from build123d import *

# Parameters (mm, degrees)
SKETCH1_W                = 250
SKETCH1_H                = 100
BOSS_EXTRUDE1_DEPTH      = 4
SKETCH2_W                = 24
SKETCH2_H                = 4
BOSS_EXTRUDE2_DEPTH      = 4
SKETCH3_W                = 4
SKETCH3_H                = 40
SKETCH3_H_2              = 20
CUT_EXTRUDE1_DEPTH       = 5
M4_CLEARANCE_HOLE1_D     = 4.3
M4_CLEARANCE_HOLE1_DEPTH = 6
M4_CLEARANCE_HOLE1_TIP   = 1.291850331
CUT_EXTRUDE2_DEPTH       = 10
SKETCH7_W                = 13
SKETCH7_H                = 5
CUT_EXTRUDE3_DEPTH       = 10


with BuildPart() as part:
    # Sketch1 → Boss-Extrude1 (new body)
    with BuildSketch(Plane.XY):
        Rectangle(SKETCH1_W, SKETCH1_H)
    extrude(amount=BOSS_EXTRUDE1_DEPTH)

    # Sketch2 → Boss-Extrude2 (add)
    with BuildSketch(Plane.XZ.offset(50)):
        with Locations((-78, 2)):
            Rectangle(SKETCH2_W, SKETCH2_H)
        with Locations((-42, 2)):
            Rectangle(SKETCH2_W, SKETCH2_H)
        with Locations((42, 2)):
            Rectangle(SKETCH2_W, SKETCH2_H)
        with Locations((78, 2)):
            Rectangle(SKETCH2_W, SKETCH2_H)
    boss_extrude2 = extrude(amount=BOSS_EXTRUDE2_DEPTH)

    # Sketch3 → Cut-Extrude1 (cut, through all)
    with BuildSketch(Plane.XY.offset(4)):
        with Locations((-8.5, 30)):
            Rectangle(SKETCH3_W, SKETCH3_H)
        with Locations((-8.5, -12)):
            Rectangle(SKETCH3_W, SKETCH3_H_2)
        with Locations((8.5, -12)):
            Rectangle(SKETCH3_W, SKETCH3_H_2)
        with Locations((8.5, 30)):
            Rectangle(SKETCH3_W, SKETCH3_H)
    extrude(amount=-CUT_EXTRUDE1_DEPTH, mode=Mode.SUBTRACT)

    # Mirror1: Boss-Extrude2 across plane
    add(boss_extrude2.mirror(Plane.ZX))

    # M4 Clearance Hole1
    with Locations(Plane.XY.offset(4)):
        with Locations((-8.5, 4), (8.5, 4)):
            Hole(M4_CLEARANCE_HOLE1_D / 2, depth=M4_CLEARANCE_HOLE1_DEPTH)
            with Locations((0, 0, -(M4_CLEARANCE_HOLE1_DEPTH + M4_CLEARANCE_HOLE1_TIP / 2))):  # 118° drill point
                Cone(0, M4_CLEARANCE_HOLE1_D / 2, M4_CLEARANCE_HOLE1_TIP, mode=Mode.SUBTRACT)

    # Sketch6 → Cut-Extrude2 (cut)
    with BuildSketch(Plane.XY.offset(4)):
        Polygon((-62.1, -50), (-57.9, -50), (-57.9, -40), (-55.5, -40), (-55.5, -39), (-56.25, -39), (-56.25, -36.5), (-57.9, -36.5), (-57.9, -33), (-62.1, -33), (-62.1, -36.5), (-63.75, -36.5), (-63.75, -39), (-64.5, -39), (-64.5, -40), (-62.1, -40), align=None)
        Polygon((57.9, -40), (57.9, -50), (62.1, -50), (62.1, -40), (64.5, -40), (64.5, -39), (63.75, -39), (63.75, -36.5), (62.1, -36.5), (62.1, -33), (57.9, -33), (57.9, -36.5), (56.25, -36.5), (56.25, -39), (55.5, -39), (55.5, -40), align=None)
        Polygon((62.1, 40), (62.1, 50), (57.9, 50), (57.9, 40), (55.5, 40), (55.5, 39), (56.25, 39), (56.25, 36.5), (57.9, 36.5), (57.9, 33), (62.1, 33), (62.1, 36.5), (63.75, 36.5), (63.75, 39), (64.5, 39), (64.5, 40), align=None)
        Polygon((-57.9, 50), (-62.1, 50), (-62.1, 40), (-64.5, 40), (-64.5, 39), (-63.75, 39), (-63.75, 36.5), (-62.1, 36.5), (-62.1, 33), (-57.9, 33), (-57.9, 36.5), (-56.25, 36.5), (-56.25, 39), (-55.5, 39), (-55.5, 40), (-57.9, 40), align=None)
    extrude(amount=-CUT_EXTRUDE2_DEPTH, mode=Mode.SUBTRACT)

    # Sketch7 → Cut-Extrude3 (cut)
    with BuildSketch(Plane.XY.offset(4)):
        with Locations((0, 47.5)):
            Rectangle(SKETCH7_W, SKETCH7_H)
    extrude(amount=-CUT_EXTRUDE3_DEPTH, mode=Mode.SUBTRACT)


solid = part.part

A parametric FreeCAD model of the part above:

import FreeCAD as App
import Part
import Sketcher

V = App.Vector

doc = App.newDocument("Part")
body = doc.addObject("PartDesign::Body", "Body")

# Sketch on XY plane
sketch1 = body.newObject("Sketcher::SketchObject", "Sketch")
sketch1.AttachmentSupport = (doc.getObject("XY_Plane"), [""])
sketch1.MapMode = "FlatFace"
sketch1.addGeometry([
    Part.LineSegment(V(-125, 50, 0), V(-125, -50, 0)),
    Part.LineSegment(V(-125, -50, 0), V(125, -50, 0)),
    Part.LineSegment(V(125, -50, 0), V(125, 50, 0)),
    Part.LineSegment(V(125, 50, 0), V(-125, 50, 0)),
], False)
sketch1.addConstraint([
    Sketcher.Constraint("Coincident", 0, 2, 1, 1),
    Sketcher.Constraint("Coincident", 1, 2, 2, 1),
    Sketcher.Constraint("Coincident", 2, 2, 3, 1),
    Sketcher.Constraint("Coincident", 3, 2, 0, 1),
    Sketcher.Constraint("Vertical", 0),
    Sketcher.Constraint("Horizontal", 1),
    Sketcher.Constraint("Vertical", 2),
    Sketcher.Constraint("Horizontal", 3),
    Sketcher.Constraint("Symmetric", 0, 2, 2, 2, -1, 1),
    Sketcher.Constraint("DistanceX", 1, 1, 1, 2, 250.0),
    Sketcher.Constraint("DistanceY", 0, 2, 0, 1, 100.0),
])
pad1 = body.newObject("PartDesign::Pad", "Pad")
pad1.Profile = sketch1
pad1.Length = 4

# Sketch on XZ plane
sketch2 = body.newObject("Sketcher::SketchObject", "Sketch001")
sketch2.AttachmentSupport = (doc.getObject("XZ_Plane"), [""])
sketch2.MapMode = "FlatFace"
sketch2.AttachmentOffset = App.Placement(V(0, 0, 50), App.Rotation())
sketch2.addGeometry([
    Part.LineSegment(V(-90, 4, 0), V(-90, 0, 0)),  # 0
    Part.LineSegment(V(-90, 0, 0), V(-66, 0, 0)),  # 1
    Part.LineSegment(V(-66, 0, 0), V(-66, 4, 0)),  # 2
    Part.LineSegment(V(-66, 4, 0), V(-90, 4, 0)),  # 3
    Part.LineSegment(V(-54, 4, 0), V(-54, 0, 0)),  # 4
    Part.LineSegment(V(-54, 0, 0), V(-30, 0, 0)),  # 5
    Part.LineSegment(V(-30, 0, 0), V(-30, 4, 0)),  # 6
    Part.LineSegment(V(-30, 4, 0), V(-54, 4, 0)),  # 7
    Part.LineSegment(V(30, 4, 0), V(30, 0, 0)),  # 8
    Part.LineSegment(V(30, 0, 0), V(54, 0, 0)),  # 9
    Part.LineSegment(V(54, 0, 0), V(54, 4, 0)),  # 10
    Part.LineSegment(V(54, 4, 0), V(30, 4, 0)),  # 11
    Part.LineSegment(V(66, 4, 0), V(66, 0, 0)),  # 12
    Part.LineSegment(V(66, 0, 0), V(90, 0, 0)),  # 13
    Part.LineSegment(V(90, 0, 0), V(90, 4, 0)),  # 14
    Part.LineSegment(V(90, 4, 0), V(66, 4, 0)),  # 15
], False)
sketch2.addConstraint([
    Sketcher.Constraint("Coincident", 0, 2, 1, 1),
    Sketcher.Constraint("Coincident", 1, 2, 2, 1),
    Sketcher.Constraint("Coincident", 2, 2, 3, 1),
    Sketcher.Constraint("Coincident", 3, 2, 0, 1),
    Sketcher.Constraint("Coincident", 4, 2, 5, 1),
    Sketcher.Constraint("Coincident", 5, 2, 6, 1),
    Sketcher.Constraint("Coincident", 6, 2, 7, 1),
    Sketcher.Constraint("Coincident", 7, 2, 4, 1),
    Sketcher.Constraint("Coincident", 8, 2, 9, 1),
    Sketcher.Constraint("Coincident", 9, 2, 10, 1),
    Sketcher.Constraint("Coincident", 10, 2, 11, 1),
    Sketcher.Constraint("Coincident", 11, 2, 8, 1),
    Sketcher.Constraint("Coincident", 12, 2, 13, 1),
    Sketcher.Constraint("Coincident", 13, 2, 14, 1),
    Sketcher.Constraint("Coincident", 14, 2, 15, 1),
    Sketcher.Constraint("Coincident", 15, 2, 12, 1),
    Sketcher.Constraint("Vertical", 0),
    Sketcher.Constraint("Horizontal", 1),
    Sketcher.Constraint("Vertical", 2),
    Sketcher.Constraint("Horizontal", 3),
    Sketcher.Constraint("Vertical", 4),
    Sketcher.Constraint("Horizontal", 5),
    Sketcher.Constraint("Vertical", 6),
    Sketcher.Constraint("Horizontal", 7),
    Sketcher.Constraint("Vertical", 8),
    Sketcher.Constraint("Horizontal", 9),
    Sketcher.Constraint("Vertical", 10),
    Sketcher.Constraint("Horizontal", 11),
    Sketcher.Constraint("Vertical", 12),
    Sketcher.Constraint("Horizontal", 13),
    Sketcher.Constraint("Vertical", 14),
    Sketcher.Constraint("Horizontal", 15),
    Sketcher.Constraint("Symmetric", 5, 2, 8, 2, -1, 1),
    Sketcher.Constraint("Symmetric", 1, 2, 12, 2, -1, 1),
    Sketcher.Constraint("Symmetric", 4, 2, 9, 2, -2),
    Sketcher.Constraint("Symmetric", 0, 2, 13, 2, -2),
    Sketcher.Constraint("Horizontal", 3, 2, 6, 2),
    Sketcher.Constraint("Horizontal", 7, 2, 10, 2),
    Sketcher.Constraint("Horizontal", 11, 2, 14, 2),
    Sketcher.Constraint("Equal", 3, 5),
    Sketcher.Constraint("DistanceX", 1, 1, 1, 2, 24.0),
    Sketcher.Constraint("DistanceY", 0, 2, 0, 1, 4.0),
    Sketcher.Constraint("DistanceX", 0, 2, -1, 1, 90.0),
    Sketcher.Constraint("DistanceX", 4, 2, -1, 1, 54.0),
])
pad2 = body.newObject("PartDesign::Pad", "Pad001")
pad2.Profile = sketch2
pad2.Length = 4

# Sketch on XY plane
sketch3 = body.newObject("Sketcher::SketchObject", "Sketch002")
sketch3.AttachmentSupport = (doc.getObject("XY_Plane"), [""])
sketch3.MapMode = "FlatFace"
sketch3.AttachmentOffset = App.Placement(V(0, 0, 4), App.Rotation())
sketch3.addGeometry([
    Part.LineSegment(V(-10.5, 50, 0), V(-10.5, 10, 0)),  # 0
    Part.LineSegment(V(-10.5, 10, 0), V(-6.5, 10, 0)),  # 1
    Part.LineSegment(V(-6.5, 10, 0), V(-6.5, 50, 0)),  # 2
    Part.LineSegment(V(-6.5, 50, 0), V(-10.5, 50, 0)),  # 3
    Part.LineSegment(V(-10.5, -2, 0), V(-10.5, -22, 0)),  # 4
    Part.LineSegment(V(-10.5, -22, 0), V(-6.5, -22, 0)),  # 5
    Part.LineSegment(V(-6.5, -22, 0), V(-6.5, -2, 0)),  # 6
    Part.LineSegment(V(-6.5, -2, 0), V(-10.5, -2, 0)),  # 7
    Part.LineSegment(V(6.5, -2, 0), V(6.5, -22, 0)),  # 8
    Part.LineSegment(V(6.5, -22, 0), V(10.5, -22, 0)),  # 9
    Part.LineSegment(V(10.5, -22, 0), V(10.5, -2, 0)),  # 10
    Part.LineSegment(V(10.5, -2, 0), V(6.5, -2, 0)),  # 11
    Part.LineSegment(V(6.5, 50, 0), V(6.5, 10, 0)),  # 12
    Part.LineSegment(V(6.5, 10, 0), V(10.5, 10, 0)),  # 13
    Part.LineSegment(V(10.5, 10, 0), V(10.5, 50, 0)),  # 14
    Part.LineSegment(V(10.5, 50, 0), V(6.5, 50, 0)),  # 15
], False)
sketch3.addConstraint([
    Sketcher.Constraint("Coincident", 0, 2, 1, 1),
    Sketcher.Constraint("Coincident", 1, 2, 2, 1),
    Sketcher.Constraint("Coincident", 2, 2, 3, 1),
    Sketcher.Constraint("Coincident", 3, 2, 0, 1),
    Sketcher.Constraint("Coincident", 4, 2, 5, 1),
    Sketcher.Constraint("Coincident", 5, 2, 6, 1),
    Sketcher.Constraint("Coincident", 6, 2, 7, 1),
    Sketcher.Constraint("Coincident", 7, 2, 4, 1),
    Sketcher.Constraint("Coincident", 8, 2, 9, 1),
    Sketcher.Constraint("Coincident", 9, 2, 10, 1),
    Sketcher.Constraint("Coincident", 10, 2, 11, 1),
    Sketcher.Constraint("Coincident", 11, 2, 8, 1),
    Sketcher.Constraint("Coincident", 12, 2, 13, 1),
    Sketcher.Constraint("Coincident", 13, 2, 14, 1),
    Sketcher.Constraint("Coincident", 14, 2, 15, 1),
    Sketcher.Constraint("Coincident", 15, 2, 12, 1),
    Sketcher.Constraint("Vertical", 0),
    Sketcher.Constraint("Horizontal", 1),
    Sketcher.Constraint("Vertical", 2),
    Sketcher.Constraint("Horizontal", 3),
    Sketcher.Constraint("Vertical", 4),
    Sketcher.Constraint("Horizontal", 5),
    Sketcher.Constraint("Vertical", 6),
    Sketcher.Constraint("Horizontal", 7),
    Sketcher.Constraint("Vertical", 8),
    Sketcher.Constraint("Horizontal", 9),
    Sketcher.Constraint("Vertical", 10),
    Sketcher.Constraint("Horizontal", 11),
    Sketcher.Constraint("Vertical", 12),
    Sketcher.Constraint("Horizontal", 13),
    Sketcher.Constraint("Vertical", 14),
    Sketcher.Constraint("Horizontal", 15),
    Sketcher.Constraint("Symmetric", 5, 2, 8, 2, -2),
    Sketcher.Constraint("Symmetric", 7, 2, 10, 2, -2),
    Sketcher.Constraint("Symmetric", 1, 2, 12, 2, -2),
    Sketcher.Constraint("Symmetric", 3, 2, 14, 2, -2),
    Sketcher.Constraint("Vertical", 3, 2, 4, 2),
    Sketcher.Constraint("Vertical", 2, 2, 5, 2),
    Sketcher.Constraint("DistanceX", 1, 1, 1, 2, 4.0),
    Sketcher.Constraint("DistanceY", 0, 2, 0, 1, 40.0),
    Sketcher.Constraint("DistanceY", 4, 2, 4, 1, 20.0),
    Sketcher.Constraint("DistanceY", -1, 1, 0, 2, 10.0),
    Sketcher.Constraint("DistanceY", 4, 2, -1, 1, 22.0),
    Sketcher.Constraint("DistanceX", 5, 2, 8, 2, 13.0),
])
pocket1 = body.newObject("PartDesign::Pocket", "Pocket")
pocket1.Profile = sketch3
pocket1.Type = "ThroughAll"
doc.recompute()

mirrored = body.newObject("PartDesign::Mirrored", "Mirrored")
mirrored.Originals = [pad2]
mirrored.MirrorPlane = (doc.getObject("XZ_Plane"), [""])
body.Tip = mirrored

# Sketch on XY plane
sketch4 = body.newObject("Sketcher::SketchObject", "Sketch003")
sketch4.AttachmentSupport = (doc.getObject("XY_Plane"), [""])
sketch4.MapMode = "FlatFace"
sketch4.AttachmentOffset = App.Placement(V(0, 0, 4), App.Rotation())
sketch4.addGeometry([
    Part.Circle(V(-8.5, 4, 0), V(0, 0, 1), 2.1),
    Part.Circle(V(8.5, 4, 0), V(0, 0, 1), 2.1),
], False)
sketch4.addConstraint([
    Sketcher.Constraint("Equal", 0, 1),
    Sketcher.Constraint("Symmetric", 0, 3, 1, 3, -2),
    Sketcher.Constraint("Diameter", 0, 4.3),
    Sketcher.Constraint("DistanceY", -1, 1, 0, 3, 4.0),
    Sketcher.Constraint("DistanceX", 0, 3, 1, 3, 17.0),
])
doc.recompute()
hole = body.newObject("PartDesign::Hole", "Hole")
hole.Profile = sketch4
hole.ThreadType = "None"
hole.Diameter = 4.3
hole.DepthType = "Dimension"
hole.Depth = 6
hole.DrillPoint = "Angled"
hole.DrillPointAngle = 118

# Sketch on XY plane
sketch5 = body.newObject("Sketcher::SketchObject", "Sketch004")
sketch5.AttachmentSupport = (doc.getObject("XY_Plane"), [""])
sketch5.MapMode = "FlatFace"
sketch5.AttachmentOffset = App.Placement(V(0, 0, 4), App.Rotation())
sketch5.addGeometry([
    Part.LineSegment(V(-62.1, -50, 0), V(-57.9, -50, 0)),  # 0
    Part.LineSegment(V(-57.9, -50, 0), V(-57.9, -40, 0)),  # 1
    Part.LineSegment(V(-57.9, -40, 0), V(-55.5, -40, 0)),  # 2
    Part.LineSegment(V(-55.5, -40, 0), V(-55.5, -39, 0)),  # 3
    Part.LineSegment(V(-55.5, -39, 0), V(-56.2, -39, 0)),  # 4
    Part.LineSegment(V(-56.2, -39, 0), V(-56.2, -36.5, 0)),  # 5
    Part.LineSegment(V(-56.2, -36.5, 0), V(-57.9, -36.5, 0)),  # 6
    Part.LineSegment(V(-57.9, -36.5, 0), V(-57.9, -33, 0)),  # 7
    Part.LineSegment(V(-57.9, -33, 0), V(-62.1, -33, 0)),  # 8
    Part.LineSegment(V(-62.1, -33, 0), V(-62.1, -36.5, 0)),  # 9
    Part.LineSegment(V(-62.1, -36.5, 0), V(-63.8, -36.5, 0)),  # 10
    Part.LineSegment(V(-63.8, -36.5, 0), V(-63.8, -39, 0)),  # 11
    Part.LineSegment(V(-63.8, -39, 0), V(-64.5, -39, 0)),  # 12
    Part.LineSegment(V(-64.5, -39, 0), V(-64.5, -40, 0)),  # 13
    Part.LineSegment(V(-64.5, -40, 0), V(-62.1, -40, 0)),  # 14
    Part.LineSegment(V(-62.1, -40, 0), V(-62.1, -50, 0)),  # 15
    Part.LineSegment(V(57.9, -40, 0), V(57.9, -50, 0)),  # 16
    Part.LineSegment(V(57.9, -50, 0), V(62.1, -50, 0)),  # 17
    Part.LineSegment(V(62.1, -50, 0), V(62.1, -40, 0)),  # 18
    Part.LineSegment(V(62.1, -40, 0), V(64.5, -40, 0)),  # 19
    Part.LineSegment(V(64.5, -40, 0), V(64.5, -39, 0)),  # 20
    Part.LineSegment(V(64.5, -39, 0), V(63.8, -39, 0)),  # 21
    Part.LineSegment(V(63.8, -39, 0), V(63.8, -36.5, 0)),  # 22
    Part.LineSegment(V(63.8, -36.5, 0), V(62.1, -36.5, 0)),  # 23
    Part.LineSegment(V(62.1, -36.5, 0), V(62.1, -33, 0)),  # 24
    Part.LineSegment(V(62.1, -33, 0), V(57.9, -33, 0)),  # 25
    Part.LineSegment(V(57.9, -33, 0), V(57.9, -36.5, 0)),  # 26
    Part.LineSegment(V(57.9, -36.5, 0), V(56.2, -36.5, 0)),  # 27
    Part.LineSegment(V(56.2, -36.5, 0), V(56.2, -39, 0)),  # 28
    Part.LineSegment(V(56.2, -39, 0), V(55.5, -39, 0)),  # 29
    Part.LineSegment(V(55.5, -39, 0), V(55.5, -40, 0)),  # 30
    Part.LineSegment(V(55.5, -40, 0), V(57.9, -40, 0)),  # 31
    Part.LineSegment(V(62.1, 40, 0), V(62.1, 50, 0)),  # 32
    Part.LineSegment(V(62.1, 50, 0), V(57.9, 50, 0)),  # 33
    Part.LineSegment(V(57.9, 50, 0), V(57.9, 40, 0)),  # 34
    Part.LineSegment(V(57.9, 40, 0), V(55.5, 40, 0)),  # 35
    Part.LineSegment(V(55.5, 40, 0), V(55.5, 39, 0)),  # 36
    Part.LineSegment(V(55.5, 39, 0), V(56.2, 39, 0)),  # 37
    Part.LineSegment(V(56.2, 39, 0), V(56.2, 36.5, 0)),  # 38
    Part.LineSegment(V(56.2, 36.5, 0), V(57.9, 36.5, 0)),  # 39
    Part.LineSegment(V(57.9, 36.5, 0), V(57.9, 33, 0)),  # 40
    Part.LineSegment(V(57.9, 33, 0), V(62.1, 33, 0)),  # 41
    Part.LineSegment(V(62.1, 33, 0), V(62.1, 36.5, 0)),  # 42
    Part.LineSegment(V(62.1, 36.5, 0), V(63.8, 36.5, 0)),  # 43
    Part.LineSegment(V(63.8, 36.5, 0), V(63.8, 39, 0)),  # 44
    Part.LineSegment(V(63.8, 39, 0), V(64.5, 39, 0)),  # 45
    Part.LineSegment(V(64.5, 39, 0), V(64.5, 40, 0)),  # 46
    Part.LineSegment(V(64.5, 40, 0), V(62.1, 40, 0)),  # 47
    Part.LineSegment(V(-57.9, 50, 0), V(-62.1, 50, 0)),  # 48
    Part.LineSegment(V(-62.1, 50, 0), V(-62.1, 40, 0)),  # 49
    Part.LineSegment(V(-62.1, 40, 0), V(-64.5, 40, 0)),  # 50
    Part.LineSegment(V(-64.5, 40, 0), V(-64.5, 39, 0)),  # 51
    Part.LineSegment(V(-64.5, 39, 0), V(-63.8, 39, 0)),  # 52
    Part.LineSegment(V(-63.8, 39, 0), V(-63.8, 36.5, 0)),  # 53
    Part.LineSegment(V(-63.8, 36.5, 0), V(-62.1, 36.5, 0)),  # 54
    Part.LineSegment(V(-62.1, 36.5, 0), V(-62.1, 33, 0)),  # 55
    Part.LineSegment(V(-62.1, 33, 0), V(-57.9, 33, 0)),  # 56
    Part.LineSegment(V(-57.9, 33, 0), V(-57.9, 36.5, 0)),  # 57
    Part.LineSegment(V(-57.9, 36.5, 0), V(-56.2, 36.5, 0)),  # 58
    Part.LineSegment(V(-56.2, 36.5, 0), V(-56.2, 39, 0)),  # 59
    Part.LineSegment(V(-56.2, 39, 0), V(-55.5, 39, 0)),  # 60
    Part.LineSegment(V(-55.5, 39, 0), V(-55.5, 40, 0)),  # 61
    Part.LineSegment(V(-55.5, 40, 0), V(-57.9, 40, 0)),  # 62
    Part.LineSegment(V(-57.9, 40, 0), V(-57.9, 50, 0)),  # 63
], False)
sketch5.addConstraint([
    Sketcher.Constraint("Coincident", 0, 2, 1, 1),
    Sketcher.Constraint("Coincident", 1, 2, 2, 1),
    Sketcher.Constraint("Coincident", 2, 2, 3, 1),
    Sketcher.Constraint("Coincident", 3, 2, 4, 1),
    Sketcher.Constraint("Coincident", 4, 2, 5, 1),
    Sketcher.Constraint("Coincident", 5, 2, 6, 1),
    Sketcher.Constraint("Coincident", 6, 2, 7, 1),
    Sketcher.Constraint("Coincident", 7, 2, 8, 1),
    Sketcher.Constraint("Coincident", 8, 2, 9, 1),
    Sketcher.Constraint("Coincident", 9, 2, 10, 1),
    Sketcher.Constraint("Coincident", 10, 2, 11, 1),
    Sketcher.Constraint("Coincident", 11, 2, 12, 1),
    Sketcher.Constraint("Coincident", 12, 2, 13, 1),
    Sketcher.Constraint("Coincident", 13, 2, 14, 1),
    Sketcher.Constraint("Coincident", 14, 2, 15, 1),
    Sketcher.Constraint("Coincident", 15, 2, 0, 1),
    Sketcher.Constraint("Coincident", 16, 2, 17, 1),
    Sketcher.Constraint("Coincident", 17, 2, 18, 1),
    Sketcher.Constraint("Coincident", 18, 2, 19, 1),
    Sketcher.Constraint("Coincident", 19, 2, 20, 1),
    Sketcher.Constraint("Coincident", 20, 2, 21, 1),
    Sketcher.Constraint("Coincident", 21, 2, 22, 1),
    Sketcher.Constraint("Coincident", 22, 2, 23, 1),
    Sketcher.Constraint("Coincident", 23, 2, 24, 1),
    Sketcher.Constraint("Coincident", 24, 2, 25, 1),
    Sketcher.Constraint("Coincident", 25, 2, 26, 1),
    Sketcher.Constraint("Coincident", 26, 2, 27, 1),
    Sketcher.Constraint("Coincident", 27, 2, 28, 1),
    Sketcher.Constraint("Coincident", 28, 2, 29, 1),
    Sketcher.Constraint("Coincident", 29, 2, 30, 1),
    Sketcher.Constraint("Coincident", 30, 2, 31, 1),
    Sketcher.Constraint("Coincident", 31, 2, 16, 1),
    Sketcher.Constraint("Coincident", 32, 2, 33, 1),
    Sketcher.Constraint("Coincident", 33, 2, 34, 1),
    Sketcher.Constraint("Coincident", 34, 2, 35, 1),
    Sketcher.Constraint("Coincident", 35, 2, 36, 1),
    Sketcher.Constraint("Coincident", 36, 2, 37, 1),
    Sketcher.Constraint("Coincident", 37, 2, 38, 1),
    Sketcher.Constraint("Coincident", 38, 2, 39, 1),
    Sketcher.Constraint("Coincident", 39, 2, 40, 1),
    Sketcher.Constraint("Coincident", 40, 2, 41, 1),
    Sketcher.Constraint("Coincident", 41, 2, 42, 1),
    Sketcher.Constraint("Coincident", 42, 2, 43, 1),
    Sketcher.Constraint("Coincident", 43, 2, 44, 1),
    Sketcher.Constraint("Coincident", 44, 2, 45, 1),
    Sketcher.Constraint("Coincident", 45, 2, 46, 1),
    Sketcher.Constraint("Coincident", 46, 2, 47, 1),
    Sketcher.Constraint("Coincident", 47, 2, 32, 1),
    Sketcher.Constraint("Coincident", 48, 2, 49, 1),
    Sketcher.Constraint("Coincident", 49, 2, 50, 1),
    Sketcher.Constraint("Coincident", 50, 2, 51, 1),
    Sketcher.Constraint("Coincident", 51, 2, 52, 1),
    Sketcher.Constraint("Coincident", 52, 2, 53, 1),
    Sketcher.Constraint("Coincident", 53, 2, 54, 1),
    Sketcher.Constraint("Coincident", 54, 2, 55, 1),
    Sketcher.Constraint("Coincident", 55, 2, 56, 1),
    Sketcher.Constraint("Coincident", 56, 2, 57, 1),
    Sketcher.Constraint("Coincident", 57, 2, 58, 1),
    Sketcher.Constraint("Coincident", 58, 2, 59, 1),
    Sketcher.Constraint("Coincident", 59, 2, 60, 1),
    Sketcher.Constraint("Coincident", 60, 2, 61, 1),
    Sketcher.Constraint("Coincident", 61, 2, 62, 1),
    Sketcher.Constraint("Coincident", 62, 2, 63, 1),
    Sketcher.Constraint("Coincident", 63, 2, 48, 1),
    Sketcher.Constraint("Horizontal", 0),
    Sketcher.Constraint("Vertical", 1),
    Sketcher.Constraint("Horizontal", 2),
    Sketcher.Constraint("Vertical", 3),
    Sketcher.Constraint("Horizontal", 4),
    Sketcher.Constraint("Vertical", 5),
    Sketcher.Constraint("Horizontal", 6),
    Sketcher.Constraint("Vertical", 7),
    Sketcher.Constraint("Horizontal", 8),
    Sketcher.Constraint("Vertical", 9),
    Sketcher.Constraint("Horizontal", 10),
    Sketcher.Constraint("Vertical", 11),
    Sketcher.Constraint("Horizontal", 12),
    Sketcher.Constraint("Vertical", 13),
    Sketcher.Constraint("Horizontal", 14),
    Sketcher.Constraint("Vertical", 15),
    Sketcher.Constraint("Vertical", 16),
    Sketcher.Constraint("Horizontal", 17),
    Sketcher.Constraint("Vertical", 18),
    Sketcher.Constraint("Horizontal", 19),
    Sketcher.Constraint("Vertical", 20),
    Sketcher.Constraint("Horizontal", 21),
    Sketcher.Constraint("Vertical", 22),
    Sketcher.Constraint("Horizontal", 23),
    Sketcher.Constraint("Vertical", 24),
    Sketcher.Constraint("Horizontal", 25),
    Sketcher.Constraint("Vertical", 26),
    Sketcher.Constraint("Horizontal", 27),
    Sketcher.Constraint("Vertical", 28),
    Sketcher.Constraint("Horizontal", 29),
    Sketcher.Constraint("Vertical", 30),
    Sketcher.Constraint("Horizontal", 31),
    Sketcher.Constraint("Vertical", 32),
    Sketcher.Constraint("Horizontal", 33),
    Sketcher.Constraint("Vertical", 34),
    Sketcher.Constraint("Horizontal", 35),
    Sketcher.Constraint("Vertical", 36),
    Sketcher.Constraint("Horizontal", 37),
    Sketcher.Constraint("Vertical", 38),
    Sketcher.Constraint("Horizontal", 39),
    Sketcher.Constraint("Vertical", 40),
    Sketcher.Constraint("Horizontal", 41),
    Sketcher.Constraint("Vertical", 42),
    Sketcher.Constraint("Horizontal", 43),
    Sketcher.Constraint("Vertical", 44),
    Sketcher.Constraint("Horizontal", 45),
    Sketcher.Constraint("Vertical", 46),
    Sketcher.Constraint("Horizontal", 47),
    Sketcher.Constraint("Horizontal", 48),
    Sketcher.Constraint("Vertical", 49),
    Sketcher.Constraint("Horizontal", 50),
    Sketcher.Constraint("Vertical", 51),
    Sketcher.Constraint("Horizontal", 52),
    Sketcher.Constraint("Vertical", 53),
    Sketcher.Constraint("Horizontal", 54),
    Sketcher.Constraint("Vertical", 55),
    Sketcher.Constraint("Horizontal", 56),
    Sketcher.Constraint("Vertical", 57),
    Sketcher.Constraint("Horizontal", 58),
    Sketcher.Constraint("Vertical", 59),
    Sketcher.Constraint("Horizontal", 60),
    Sketcher.Constraint("Vertical", 61),
    Sketcher.Constraint("Horizontal", 62),
    Sketcher.Constraint("Vertical", 63),
    Sketcher.Constraint("Symmetric", 15, 2, 32, 2, -1, 1),
    Sketcher.Constraint("Symmetric", 1, 2, 34, 2, -1, 1),
    Sketcher.Constraint("Symmetric", 3, 2, 36, 2, -1, 1),
    Sketcher.Constraint("Symmetric", 5, 2, 38, 2, -1, 1),
    Sketcher.Constraint("Symmetric", 7, 2, 40, 2, -1, 1),
    Sketcher.Constraint("Symmetric", 9, 2, 42, 2, -1, 1),
    Sketcher.Constraint("Symmetric", 11, 2, 44, 2, -1, 1),
    Sketcher.Constraint("Symmetric", 13, 2, 46, 2, -1, 1),
    Sketcher.Constraint("Symmetric", 17, 2, 48, 2, -1, 1),
    Sketcher.Constraint("Symmetric", 19, 2, 50, 2, -1, 1),
    Sketcher.Constraint("Symmetric", 21, 2, 52, 2, -1, 1),
    Sketcher.Constraint("Symmetric", 23, 2, 54, 2, -1, 1),
    Sketcher.Constraint("Symmetric", 25, 2, 56, 2, -1, 1),
    Sketcher.Constraint("Symmetric", 27, 2, 58, 2, -1, 1),
    Sketcher.Constraint("Symmetric", 29, 2, 60, 2, -1, 1),
    Sketcher.Constraint("Symmetric", 31, 2, 62, 2, -1, 1),
    Sketcher.Constraint("Symmetric", 0, 2, 16, 2, -2),
    Sketcher.Constraint("Symmetric", 14, 2, 18, 2, -2),
    Sketcher.Constraint("Symmetric", 12, 2, 20, 2, -2),
    Sketcher.Constraint("Symmetric", 10, 2, 22, 2, -2),
    Sketcher.Constraint("Symmetric", 8, 2, 24, 2, -2),
    Sketcher.Constraint("Symmetric", 6, 2, 26, 2, -2),
    Sketcher.Constraint("Symmetric", 4, 2, 28, 2, -2),
    Sketcher.Constraint("Symmetric", 2, 2, 30, 2, -2),
    Sketcher.Constraint("Horizontal", 6, 2, 9, 2),
    Sketcher.Constraint("Horizontal", 4, 2, 11, 2),
    Sketcher.Constraint("Horizontal", 2, 2, 13, 2),
    Sketcher.Constraint("Vertical", 1, 2, 6, 2),
    Sketcher.Constraint("Vertical", 9, 2, 14, 2),
    Sketcher.Constraint("Equal", 6, 10),
    Sketcher.Constraint("Equal", 4, 12),
    Sketcher.Constraint("DistanceY", 1, 1, 1, 2, 10.0),
    Sketcher.Constraint("DistanceY", 3, 1, 3, 2, 1.0),
    Sketcher.Constraint("DistanceX", 0, 1, 0, 2, 4.2),
    Sketcher.Constraint("DistanceX", 2, 1, 2, 2, 2.4),
    Sketcher.Constraint("DistanceY", 5, 1, 5, 2, 2.5),
    Sketcher.Constraint("DistanceY", 7, 1, 7, 2, 3.5),
    Sketcher.Constraint("DistanceY", 0, 2, -1, 1, 50.0),
    Sketcher.Constraint("DistanceX", 4, 2, 4, 1, 0.75),
    Sketcher.Constraint("DistanceX", 0, 2, -1, 1, 57.9),
])
pocket2 = body.newObject("PartDesign::Pocket", "Pocket001")
pocket2.Profile = sketch5
pocket2.Length = 10

# Sketch on XY plane
sketch6 = body.newObject("Sketcher::SketchObject", "Sketch005")
sketch6.AttachmentSupport = (doc.getObject("XY_Plane"), [""])
sketch6.MapMode = "FlatFace"
sketch6.AttachmentOffset = App.Placement(V(0, 0, 4), App.Rotation())
sketch6.addGeometry([
    Part.LineSegment(V(-6, 50, 0), V(-6, 45, 0)),
    Part.LineSegment(V(-6, 45, 0), V(6, 45, 0)),
    Part.LineSegment(V(6, 45, 0), V(6, 50, 0)),
    Part.LineSegment(V(6, 50, 0), V(-6, 50, 0)),
], False)
sketch6.addConstraint([
    Sketcher.Constraint("Coincident", 0, 2, 1, 1),
    Sketcher.Constraint("Coincident", 1, 2, 2, 1),
    Sketcher.Constraint("Coincident", 2, 2, 3, 1),
    Sketcher.Constraint("Coincident", 3, 2, 0, 1),
    Sketcher.Constraint("Vertical", 0),
    Sketcher.Constraint("Horizontal", 1),
    Sketcher.Constraint("Vertical", 2),
    Sketcher.Constraint("Horizontal", 3),
    Sketcher.Constraint("DistanceX", 1, 1, 1, 2, 13.0),
    Sketcher.Constraint("DistanceY", 0, 2, 0, 1, 5.0),
    Sketcher.Constraint("DistanceY", -1, 1, 0, 2, 45.0),
    Sketcher.Constraint("DistanceX", 0, 2, -1, 1, 6.5),
])
pocket3 = body.newObject("PartDesign::Pocket", "Pocket002")
pocket3.Profile = sketch6
pocket3.Length = 10

doc.recompute()
